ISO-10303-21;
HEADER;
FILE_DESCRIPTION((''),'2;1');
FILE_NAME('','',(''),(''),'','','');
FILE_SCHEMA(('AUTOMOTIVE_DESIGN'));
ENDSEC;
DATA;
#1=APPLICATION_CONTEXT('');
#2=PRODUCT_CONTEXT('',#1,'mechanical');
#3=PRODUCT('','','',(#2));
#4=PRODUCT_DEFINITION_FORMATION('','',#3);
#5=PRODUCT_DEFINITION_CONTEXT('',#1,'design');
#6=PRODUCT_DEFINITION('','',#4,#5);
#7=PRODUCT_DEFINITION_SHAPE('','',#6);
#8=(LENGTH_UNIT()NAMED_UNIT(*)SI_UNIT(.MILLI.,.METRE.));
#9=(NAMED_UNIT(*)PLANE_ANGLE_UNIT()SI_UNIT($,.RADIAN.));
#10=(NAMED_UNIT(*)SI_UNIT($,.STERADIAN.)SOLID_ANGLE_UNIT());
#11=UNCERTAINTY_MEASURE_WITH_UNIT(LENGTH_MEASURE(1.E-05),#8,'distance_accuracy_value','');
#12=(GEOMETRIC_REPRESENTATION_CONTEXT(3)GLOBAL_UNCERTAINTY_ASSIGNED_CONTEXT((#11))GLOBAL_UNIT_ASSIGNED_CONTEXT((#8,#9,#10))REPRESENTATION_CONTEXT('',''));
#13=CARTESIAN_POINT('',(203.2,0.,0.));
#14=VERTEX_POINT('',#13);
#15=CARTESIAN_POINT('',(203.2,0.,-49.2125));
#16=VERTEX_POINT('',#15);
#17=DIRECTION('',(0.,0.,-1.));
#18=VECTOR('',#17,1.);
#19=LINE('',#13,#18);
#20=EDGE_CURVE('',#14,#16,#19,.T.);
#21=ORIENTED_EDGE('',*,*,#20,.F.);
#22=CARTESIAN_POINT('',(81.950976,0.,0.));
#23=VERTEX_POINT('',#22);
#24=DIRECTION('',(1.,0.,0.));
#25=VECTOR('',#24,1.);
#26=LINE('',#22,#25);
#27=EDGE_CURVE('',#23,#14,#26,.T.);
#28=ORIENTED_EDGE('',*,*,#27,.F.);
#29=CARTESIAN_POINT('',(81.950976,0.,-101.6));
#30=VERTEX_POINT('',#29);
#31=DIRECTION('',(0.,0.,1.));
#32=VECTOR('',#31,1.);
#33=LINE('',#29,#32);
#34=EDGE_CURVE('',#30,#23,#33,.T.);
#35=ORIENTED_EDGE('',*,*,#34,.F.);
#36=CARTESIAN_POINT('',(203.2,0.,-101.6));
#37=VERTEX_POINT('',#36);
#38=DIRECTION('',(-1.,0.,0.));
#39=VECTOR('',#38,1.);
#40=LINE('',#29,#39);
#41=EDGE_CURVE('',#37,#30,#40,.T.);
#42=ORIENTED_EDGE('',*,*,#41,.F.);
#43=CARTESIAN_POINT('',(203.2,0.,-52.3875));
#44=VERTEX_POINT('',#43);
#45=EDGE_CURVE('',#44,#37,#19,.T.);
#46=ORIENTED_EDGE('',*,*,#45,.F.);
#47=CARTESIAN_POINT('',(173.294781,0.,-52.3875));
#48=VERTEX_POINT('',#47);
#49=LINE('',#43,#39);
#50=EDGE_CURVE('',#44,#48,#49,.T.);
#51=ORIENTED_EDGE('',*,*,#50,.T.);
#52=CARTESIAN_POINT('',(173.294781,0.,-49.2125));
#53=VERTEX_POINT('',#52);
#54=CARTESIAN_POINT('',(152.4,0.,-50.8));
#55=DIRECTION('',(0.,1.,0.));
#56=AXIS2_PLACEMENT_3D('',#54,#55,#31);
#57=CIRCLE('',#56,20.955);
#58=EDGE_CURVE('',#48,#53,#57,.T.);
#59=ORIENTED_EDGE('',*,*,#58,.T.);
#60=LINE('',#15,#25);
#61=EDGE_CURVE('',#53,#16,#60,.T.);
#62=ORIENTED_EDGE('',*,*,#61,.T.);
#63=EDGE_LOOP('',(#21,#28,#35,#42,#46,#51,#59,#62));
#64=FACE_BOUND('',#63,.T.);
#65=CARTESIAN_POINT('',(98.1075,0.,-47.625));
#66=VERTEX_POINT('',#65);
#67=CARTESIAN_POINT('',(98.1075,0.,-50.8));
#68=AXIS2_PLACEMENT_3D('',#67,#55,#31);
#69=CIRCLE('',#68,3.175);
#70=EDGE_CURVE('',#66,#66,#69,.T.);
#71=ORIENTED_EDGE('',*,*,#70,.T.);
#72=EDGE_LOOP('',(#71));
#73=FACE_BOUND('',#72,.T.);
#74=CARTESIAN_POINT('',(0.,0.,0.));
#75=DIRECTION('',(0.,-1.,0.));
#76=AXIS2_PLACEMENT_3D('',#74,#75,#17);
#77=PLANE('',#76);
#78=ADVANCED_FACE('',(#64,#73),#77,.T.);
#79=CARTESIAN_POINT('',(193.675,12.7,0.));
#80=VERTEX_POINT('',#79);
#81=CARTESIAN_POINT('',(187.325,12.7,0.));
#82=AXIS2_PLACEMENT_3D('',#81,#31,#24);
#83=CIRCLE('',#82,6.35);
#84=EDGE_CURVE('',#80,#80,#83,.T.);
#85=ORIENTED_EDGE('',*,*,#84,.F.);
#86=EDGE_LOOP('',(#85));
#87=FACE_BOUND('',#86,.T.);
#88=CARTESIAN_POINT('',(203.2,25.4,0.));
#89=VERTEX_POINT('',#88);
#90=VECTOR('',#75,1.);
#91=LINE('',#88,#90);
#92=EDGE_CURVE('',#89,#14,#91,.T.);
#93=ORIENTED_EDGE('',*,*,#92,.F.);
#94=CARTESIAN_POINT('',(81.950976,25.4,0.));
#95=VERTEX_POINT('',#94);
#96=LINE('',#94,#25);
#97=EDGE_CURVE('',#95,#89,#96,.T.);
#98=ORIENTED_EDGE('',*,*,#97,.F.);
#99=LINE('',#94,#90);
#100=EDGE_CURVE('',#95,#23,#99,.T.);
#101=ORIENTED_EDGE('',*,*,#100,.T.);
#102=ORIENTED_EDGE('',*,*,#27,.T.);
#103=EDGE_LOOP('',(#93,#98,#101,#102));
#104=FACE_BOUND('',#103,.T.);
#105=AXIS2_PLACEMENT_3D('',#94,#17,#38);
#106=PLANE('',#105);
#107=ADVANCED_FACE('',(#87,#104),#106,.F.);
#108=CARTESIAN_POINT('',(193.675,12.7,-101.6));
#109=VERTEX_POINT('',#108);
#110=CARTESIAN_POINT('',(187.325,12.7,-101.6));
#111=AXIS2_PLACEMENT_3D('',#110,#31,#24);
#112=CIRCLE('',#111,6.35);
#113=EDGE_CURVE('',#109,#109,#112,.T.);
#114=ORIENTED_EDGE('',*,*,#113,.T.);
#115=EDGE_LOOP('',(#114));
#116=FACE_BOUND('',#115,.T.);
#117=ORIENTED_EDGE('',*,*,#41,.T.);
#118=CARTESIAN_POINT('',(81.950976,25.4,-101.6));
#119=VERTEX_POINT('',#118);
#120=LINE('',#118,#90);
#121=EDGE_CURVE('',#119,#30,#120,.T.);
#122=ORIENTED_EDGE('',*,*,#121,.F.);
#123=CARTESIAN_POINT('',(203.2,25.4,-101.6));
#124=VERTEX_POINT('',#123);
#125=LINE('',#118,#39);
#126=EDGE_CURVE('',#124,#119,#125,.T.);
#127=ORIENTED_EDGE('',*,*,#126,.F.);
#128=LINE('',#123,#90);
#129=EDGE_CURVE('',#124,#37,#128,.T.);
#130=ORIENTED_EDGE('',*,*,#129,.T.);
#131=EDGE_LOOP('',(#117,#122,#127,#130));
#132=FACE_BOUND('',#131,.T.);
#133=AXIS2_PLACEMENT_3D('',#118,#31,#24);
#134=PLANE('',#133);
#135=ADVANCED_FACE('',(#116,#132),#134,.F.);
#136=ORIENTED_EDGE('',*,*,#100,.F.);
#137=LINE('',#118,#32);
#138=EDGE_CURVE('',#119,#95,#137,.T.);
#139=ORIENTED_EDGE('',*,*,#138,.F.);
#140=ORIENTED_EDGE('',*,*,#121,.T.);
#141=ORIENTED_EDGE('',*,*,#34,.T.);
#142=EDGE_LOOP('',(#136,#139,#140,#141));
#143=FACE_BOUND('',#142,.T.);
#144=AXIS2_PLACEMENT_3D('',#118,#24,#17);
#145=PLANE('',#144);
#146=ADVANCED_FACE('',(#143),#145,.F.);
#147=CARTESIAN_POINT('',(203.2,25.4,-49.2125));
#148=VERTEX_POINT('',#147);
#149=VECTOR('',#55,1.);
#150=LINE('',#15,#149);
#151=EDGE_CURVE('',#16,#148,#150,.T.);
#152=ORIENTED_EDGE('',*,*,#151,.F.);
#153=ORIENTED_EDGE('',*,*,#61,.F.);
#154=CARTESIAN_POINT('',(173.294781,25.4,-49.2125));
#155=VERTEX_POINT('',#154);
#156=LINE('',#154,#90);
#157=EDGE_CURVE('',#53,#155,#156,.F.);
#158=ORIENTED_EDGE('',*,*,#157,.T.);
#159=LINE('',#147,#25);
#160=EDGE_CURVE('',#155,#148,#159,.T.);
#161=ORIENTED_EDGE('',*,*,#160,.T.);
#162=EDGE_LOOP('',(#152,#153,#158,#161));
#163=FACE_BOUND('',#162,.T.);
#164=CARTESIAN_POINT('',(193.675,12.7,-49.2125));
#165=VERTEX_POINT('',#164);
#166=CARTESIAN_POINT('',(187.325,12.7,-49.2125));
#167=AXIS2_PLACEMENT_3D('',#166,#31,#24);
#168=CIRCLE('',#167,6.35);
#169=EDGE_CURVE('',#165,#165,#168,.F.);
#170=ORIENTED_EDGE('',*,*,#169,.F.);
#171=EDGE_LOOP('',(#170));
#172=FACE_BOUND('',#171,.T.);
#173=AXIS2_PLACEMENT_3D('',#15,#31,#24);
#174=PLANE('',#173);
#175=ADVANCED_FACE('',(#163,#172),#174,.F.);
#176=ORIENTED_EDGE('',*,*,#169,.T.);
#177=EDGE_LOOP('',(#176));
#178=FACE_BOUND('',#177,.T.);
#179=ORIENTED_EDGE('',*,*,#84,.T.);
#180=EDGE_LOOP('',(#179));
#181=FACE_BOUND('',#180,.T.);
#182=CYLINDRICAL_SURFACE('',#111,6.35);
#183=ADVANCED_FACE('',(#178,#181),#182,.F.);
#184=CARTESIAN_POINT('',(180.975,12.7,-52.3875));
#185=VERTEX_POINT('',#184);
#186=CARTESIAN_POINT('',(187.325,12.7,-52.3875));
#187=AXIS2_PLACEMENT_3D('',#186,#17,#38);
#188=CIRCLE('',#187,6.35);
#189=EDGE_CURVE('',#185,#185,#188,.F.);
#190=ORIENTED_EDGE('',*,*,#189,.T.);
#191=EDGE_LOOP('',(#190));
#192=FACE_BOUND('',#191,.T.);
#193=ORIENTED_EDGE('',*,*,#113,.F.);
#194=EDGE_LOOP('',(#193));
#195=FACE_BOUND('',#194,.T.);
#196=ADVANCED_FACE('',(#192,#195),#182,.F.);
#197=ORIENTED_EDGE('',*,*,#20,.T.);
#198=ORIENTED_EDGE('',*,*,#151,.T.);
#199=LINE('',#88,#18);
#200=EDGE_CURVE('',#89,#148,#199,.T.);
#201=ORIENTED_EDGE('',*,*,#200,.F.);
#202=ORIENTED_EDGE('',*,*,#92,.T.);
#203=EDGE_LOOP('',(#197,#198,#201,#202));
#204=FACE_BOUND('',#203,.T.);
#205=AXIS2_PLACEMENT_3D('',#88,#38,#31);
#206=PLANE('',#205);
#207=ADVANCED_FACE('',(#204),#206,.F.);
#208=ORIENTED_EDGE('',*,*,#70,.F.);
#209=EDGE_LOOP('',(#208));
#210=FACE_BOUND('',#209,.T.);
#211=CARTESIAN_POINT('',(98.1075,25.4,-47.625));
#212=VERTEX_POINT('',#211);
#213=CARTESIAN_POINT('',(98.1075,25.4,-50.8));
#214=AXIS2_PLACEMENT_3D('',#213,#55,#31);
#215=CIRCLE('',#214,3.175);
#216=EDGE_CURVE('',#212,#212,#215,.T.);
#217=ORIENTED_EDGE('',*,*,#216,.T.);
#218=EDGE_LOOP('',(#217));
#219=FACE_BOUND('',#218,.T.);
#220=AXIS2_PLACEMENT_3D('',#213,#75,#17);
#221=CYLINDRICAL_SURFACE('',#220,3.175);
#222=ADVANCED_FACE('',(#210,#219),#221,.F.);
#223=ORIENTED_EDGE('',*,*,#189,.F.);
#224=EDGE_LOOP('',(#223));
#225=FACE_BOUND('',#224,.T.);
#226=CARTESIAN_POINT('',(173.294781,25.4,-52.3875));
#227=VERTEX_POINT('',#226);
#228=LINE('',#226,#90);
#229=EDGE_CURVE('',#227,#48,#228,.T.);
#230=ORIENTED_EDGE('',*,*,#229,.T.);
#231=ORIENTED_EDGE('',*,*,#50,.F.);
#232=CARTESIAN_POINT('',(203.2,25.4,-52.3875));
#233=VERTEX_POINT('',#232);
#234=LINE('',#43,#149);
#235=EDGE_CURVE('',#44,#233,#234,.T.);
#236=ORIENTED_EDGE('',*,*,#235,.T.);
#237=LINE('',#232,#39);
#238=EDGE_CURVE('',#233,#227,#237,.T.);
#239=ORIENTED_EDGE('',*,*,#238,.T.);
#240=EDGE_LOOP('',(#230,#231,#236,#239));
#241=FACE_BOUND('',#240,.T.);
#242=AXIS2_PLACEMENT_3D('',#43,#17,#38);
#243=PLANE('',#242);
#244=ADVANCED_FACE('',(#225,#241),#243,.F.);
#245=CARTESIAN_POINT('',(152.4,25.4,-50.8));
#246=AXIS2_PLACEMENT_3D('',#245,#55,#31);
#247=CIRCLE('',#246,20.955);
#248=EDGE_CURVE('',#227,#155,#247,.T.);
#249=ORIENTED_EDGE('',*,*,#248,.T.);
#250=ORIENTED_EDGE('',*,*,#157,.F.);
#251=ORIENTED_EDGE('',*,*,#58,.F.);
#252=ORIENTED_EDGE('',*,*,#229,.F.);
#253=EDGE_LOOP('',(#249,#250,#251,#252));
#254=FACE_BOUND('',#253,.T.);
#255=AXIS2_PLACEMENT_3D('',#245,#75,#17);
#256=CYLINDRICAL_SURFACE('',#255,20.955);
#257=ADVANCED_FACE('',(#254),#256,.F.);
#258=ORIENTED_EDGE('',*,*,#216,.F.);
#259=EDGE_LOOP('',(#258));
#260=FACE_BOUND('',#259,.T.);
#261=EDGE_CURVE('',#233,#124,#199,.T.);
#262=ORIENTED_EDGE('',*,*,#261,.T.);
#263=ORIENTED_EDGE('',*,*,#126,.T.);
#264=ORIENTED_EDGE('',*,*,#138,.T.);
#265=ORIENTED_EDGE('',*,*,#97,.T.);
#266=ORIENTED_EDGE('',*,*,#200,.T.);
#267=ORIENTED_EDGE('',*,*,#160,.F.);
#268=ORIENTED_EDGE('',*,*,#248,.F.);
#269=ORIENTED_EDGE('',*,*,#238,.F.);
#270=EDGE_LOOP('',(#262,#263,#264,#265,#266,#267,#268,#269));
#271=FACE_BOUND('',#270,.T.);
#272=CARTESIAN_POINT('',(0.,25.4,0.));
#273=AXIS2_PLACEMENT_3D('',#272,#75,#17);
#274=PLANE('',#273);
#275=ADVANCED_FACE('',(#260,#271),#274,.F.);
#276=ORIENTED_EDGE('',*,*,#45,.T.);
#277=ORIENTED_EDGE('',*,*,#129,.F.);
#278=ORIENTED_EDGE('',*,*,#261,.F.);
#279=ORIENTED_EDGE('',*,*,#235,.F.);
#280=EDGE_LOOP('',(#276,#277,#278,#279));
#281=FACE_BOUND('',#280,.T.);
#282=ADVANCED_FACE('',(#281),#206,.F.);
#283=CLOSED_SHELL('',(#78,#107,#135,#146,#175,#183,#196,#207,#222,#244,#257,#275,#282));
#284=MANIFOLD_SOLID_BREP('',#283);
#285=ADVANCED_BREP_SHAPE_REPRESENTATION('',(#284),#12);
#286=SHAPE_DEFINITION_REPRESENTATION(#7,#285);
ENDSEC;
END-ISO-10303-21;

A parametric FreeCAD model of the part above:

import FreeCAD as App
import Part
import Sketcher
from FreeCAD import Vector
Q = App.Units.Quantity

doc = App.newDocument("Part")
body = doc.addObject("PartDesign::Body", "Body")

# Sketch on XZ plane
sketch1 = body.newObject("Sketcher::SketchObject", "Sketch")
sketch1.AttachmentSupport = (doc.getObject("XZ_Plane"), [""])
sketch1.MapMode = "FlatFace"
sketch1.addGeometry([
    Part.LineSegment(Vector(82, -101.6, 0), Vector(82, 0, 0)),  # 0
    Part.LineSegment(Vector(82, 0, 0), Vector(203.2, 0, 0)),  # 1
    Part.LineSegment(Vector(203.2, 0, 0), Vector(203.2, -101.6, 0)),  # 2
    Part.LineSegment(Vector(203.2, -101.6, 0), Vector(82, -101.6, 0)),  # 3
    Part.Circle(Vector(98.1, -50.8, 0), Vector(0, 0, 1), 3.2),  # 4
    Part.Circle(Vector(152.4, -50.8, 0), Vector(0, 0, 1), 21),  # 5
], False)
sketch1.addConstraint([
    Sketcher.Constraint("Coincident", 0, 2, 1, 1),
    Sketcher.Constraint("Coincident", 1, 2, 2, 1),
    Sketcher.Constraint("Coincident", 2, 2, 3, 1),
    Sketcher.Constraint("Coincident", 3, 2, 0, 1),
    Sketcher.Constraint("Vertical", 0),
    Sketcher.Constraint("Horizontal", 1),
    Sketcher.Constraint("Vertical", 2),
    Sketcher.Constraint("Horizontal", 3),
    Sketcher.Constraint("PointOnObject", 0, 2, -1),
    Sketcher.Constraint("Horizontal", 4, 3, 5, 3),
    Sketcher.Constraint("Diameter", 4, Q("0.25 in")),
    Sketcher.Constraint("Diameter", 5, Q("1.65 in")),
    Sketcher.Constraint("DistanceY", 0, 1, 0, 2, Q("4 in")),
    Sketcher.Constraint("DistanceY", 4, 3, -1, 1, Q("2 in")),
    Sketcher.Constraint("DistanceX", -1, 1, 5, 3, Q("6 in")),
    Sketcher.Constraint("DistanceX", -1, 1, 1, 2, Q("8 in")),
    Sketcher.Constraint("DistanceX", -1, 1, 4, 3, Q("3.8625 in")),
    Sketcher.Constraint("DistanceX", 1, 1, 1, 2, Q("121.249024 mm")),
])
pad1 = body.newObject("PartDesign::Pad", "Pad")
pad1.Profile = sketch1
pad1.Length = Q("1 in")
pad1.Reversed = True

# Sketch on XY plane
sketch2 = body.newObject("Sketcher::SketchObject", "Sketch001")
sketch2.AttachmentSupport = (doc.getObject("XY_Plane"), [""])
sketch2.MapMode = "FlatFace"
sketch2.addGeometry(Part.Circle(Vector(187, 13, 0), Vector(0, 0, 1), 6), False)
sketch2.addConstraint([
    Sketcher.Constraint("Diameter", 0, Q("0.5 in")),
    Sketcher.Constraint("DistanceY", -1, 1, 0, 3, Q("0.5 in")),
    Sketcher.Constraint("DistanceX", -1, 1, 0, 3, Q("7.375 in")),
])
pocket1 = body.newObject("PartDesign::Pocket", "Pocket")
pocket1.Profile = sketch2
pocket1.Type = "ThroughAll"

# Sketch on XZ plane
sketch3 = body.newObject("Sketcher::SketchObject", "Sketch002")
sketch3.AttachmentSupport = (doc.getObject("XZ_Plane"), [""])
sketch3.MapMode = "FlatFace"
sketch3.AttachmentOffset = App.Placement(Vector(0, 0, -1 * 25.4), App.Rotation())
sketch3.addGeometry([
    Part.LineSegment(Vector(171.6, -52.4, 0), Vector(171.6, -49.2, 0)),
    Part.LineSegment(Vector(171.6, -49.2, 0), Vector(203.2, -49.2, 0)),
    Part.LineSegment(Vector(203.2, -49.2, 0), Vector(203.2, -52.4, 0)),
    Part.LineSegment(Vector(203.2, -52.4, 0), Vector(171.6, -52.4, 0)),
], False)
sketch3.addConstraint([
    Sketcher.Constraint("Coincident", 0, 2, 1, 1),
    Sketcher.Constraint("Coincident", 1, 2, 2, 1),
    Sketcher.Constraint("Coincident", 2, 2, 3, 1),
    Sketcher.Constraint("Coincident", 3, 2, 0, 1),
    Sketcher.Constraint("Vertical", 0),
    Sketcher.Constraint("Horizontal", 1),
    Sketcher.Constraint("Vertical", 2),
    Sketcher.Constraint("Horizontal", 3),
    Sketcher.Constraint("DistanceX", -1, 1, 1, 2, Q("8 in")),
    Sketcher.Constraint("DistanceY", 0, 1, 0, 2, Q("0.125 in")),
    Sketcher.Constraint("DistanceY", 0, 2, -1, 1, Q("1.9375 in")),
    Sketcher.Constraint("DistanceX", 1, 1, 1, 2, Q("31.554427 mm")),
])
pocket2 = body.newObject("PartDesign::Pocket", "Pocket001")
pocket2.Profile = sketch3
pocket2.Type = "ThroughAll"
pocket2.Reversed = True

doc.recompute()
